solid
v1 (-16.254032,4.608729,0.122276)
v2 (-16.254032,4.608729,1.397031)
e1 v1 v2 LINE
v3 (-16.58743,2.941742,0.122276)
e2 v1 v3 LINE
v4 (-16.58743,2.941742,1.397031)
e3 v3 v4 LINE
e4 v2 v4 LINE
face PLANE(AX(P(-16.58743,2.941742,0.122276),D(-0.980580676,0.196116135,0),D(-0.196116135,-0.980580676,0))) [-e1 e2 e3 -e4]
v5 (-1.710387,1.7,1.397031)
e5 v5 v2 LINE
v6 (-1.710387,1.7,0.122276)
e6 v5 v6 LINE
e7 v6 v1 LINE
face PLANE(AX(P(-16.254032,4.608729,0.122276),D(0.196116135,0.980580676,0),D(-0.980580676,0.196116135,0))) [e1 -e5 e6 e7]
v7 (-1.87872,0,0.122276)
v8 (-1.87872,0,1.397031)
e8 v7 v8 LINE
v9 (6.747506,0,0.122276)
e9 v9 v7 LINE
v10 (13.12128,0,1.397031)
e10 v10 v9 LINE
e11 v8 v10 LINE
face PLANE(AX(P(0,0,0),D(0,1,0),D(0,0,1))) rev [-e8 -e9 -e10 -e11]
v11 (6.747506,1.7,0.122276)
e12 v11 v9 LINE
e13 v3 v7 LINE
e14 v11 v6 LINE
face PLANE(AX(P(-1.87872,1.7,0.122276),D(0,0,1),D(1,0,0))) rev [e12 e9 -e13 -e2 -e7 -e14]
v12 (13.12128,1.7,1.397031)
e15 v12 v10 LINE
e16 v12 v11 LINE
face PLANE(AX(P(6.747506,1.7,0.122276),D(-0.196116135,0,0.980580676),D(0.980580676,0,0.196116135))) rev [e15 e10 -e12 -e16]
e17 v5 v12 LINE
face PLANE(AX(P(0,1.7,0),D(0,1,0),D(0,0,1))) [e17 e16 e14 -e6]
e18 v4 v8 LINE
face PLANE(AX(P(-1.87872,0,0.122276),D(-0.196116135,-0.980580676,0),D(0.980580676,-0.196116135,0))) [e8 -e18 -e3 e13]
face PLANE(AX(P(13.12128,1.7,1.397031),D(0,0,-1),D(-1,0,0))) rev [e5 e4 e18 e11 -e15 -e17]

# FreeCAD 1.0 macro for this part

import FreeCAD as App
import Part
import Sketcher
Q = App.Units.Quantity


def add_polygon(sketch, points):
    """Adds a closed chain of lines whose ends are joined by coincident constraints."""
    first, n = sketch.GeometryCount, len(points)
    for a, b in zip(points, points[1:] + points[:1]):
        sketch.addGeometry(Part.LineSegment(App.Vector(*a, 0), App.Vector(*b, 0)), False)
    for i in range(n):
        sketch.addConstraint(Sketcher.Constraint("Coincident", first + i, 2, first + (i + 1) % n, 1))

doc = App.newDocument("Part")
params = doc.addObject("Spreadsheet::Sheet", "Params")
for row, (alias, value) in enumerate([
    ("sketch1_width", "15 mm"),
    ("sketch1_length", "6.5 mm"),
    ("pad1_length", "1.7 mm"),
    ("sketch2_length", "15 mm"),
    ("sketch2_length2", "1.7 mm"),
    ("pad2_length", "1.274755 mm"),
], start=1):
    params.set(f"A{row}", alias)
    params.set(f"B{row}", "=" + value)
    params.setAlias(f"B{row}", alias)

body = doc.addObject("PartDesign::Body", "Body")

# Sketch on XZ plane
sketch1 = body.newObject("Sketcher::SketchObject", "Sketch")
sketch1.AttachmentSupport = (doc.getObject("XZ_Plane"), [""])
sketch1.MapMode = "FlatFace"
add_polygon(sketch1, [(-1.9, 0.1), (-1.9, 1.4), (13.1, 1.4), (6.7, 0.1)])  # lines 0-3
sketch1.addConstraint([
    Sketcher.Constraint("Vertical", 0),
    Sketcher.Constraint("Horizontal", 1),
    Sketcher.Constraint("Horizontal", 3),
    Sketcher.Constraint("DistanceX", 1, 1, 1, 2, Q("15 mm")),
    Sketcher.Constraint("Distance", 2, Q("6.5 mm")),
    Sketcher.Constraint("DistanceX", 3, 2, 3, 1, Q("8.626226 mm")),
    Sketcher.Constraint("DistanceX", 0, 2, -1, 1, Q("1.87872 mm")),
    Sketcher.Constraint("DistanceY", -1, 1, 0, 2, Q("1.397031 mm")),
])
sketch1.setExpression("Constraints[7]", "Params.sketch1_width")
sketch1.setExpression("Constraints[8]", "Params.sketch1_length")
pad1 = body.newObject("PartDesign::Pad", "Pad")
pad1.Profile = sketch1
pad1.setExpression("Length", "Params.pad1_length")
pad1.Reversed = True

# Sketch on XY plane
sketch2 = body.newObject("Sketcher::SketchObject", "Sketch001")
sketch2.AttachmentSupport = (doc.getObject("XY_Plane"), [""])
sketch2.MapMode = "FlatFace"
sketch2.AttachmentOffset = App.Placement(App.Vector(0, 0, 1.397031), App.Rotation())
add_polygon(sketch2, [(-16.6, 2.9), (-1.9, 0), (-1.5, 1.7), (-16.3, 4.6)])  # lines 0-3
sketch2.addConstraint([
    Sketcher.Constraint("PointOnObject", 0, 2, -1),
    Sketcher.Constraint("Perpendicular", 0, 1),
    Sketcher.Constraint("Perpendicular", 1, 2),
    Sketcher.Constraint("Perpendicular", 2, 3),
    Sketcher.Constraint("Distance", 0, Q("15 mm")),
    Sketcher.Constraint("Distance", 1, Q("1.7 mm")),
    Sketcher.Constraint("DistanceX", 0, 2, -1, 1, Q("1.87872 mm")),
    Sketcher.Constraint("DistanceY", -1, 1, 2, 2, Q("4.608729 mm")),
])
sketch2.setExpression("Constraints[8]", "Params.sketch2_length")
sketch2.setExpression("Constraints[9]", "Params.sketch2_length2")
pad2 = body.newObject("PartDesign::Pad", "Pad001")
pad2.Profile = sketch2
pad2.setExpression("Length", "Params.pad2_length")
pad2.Reversed = True

doc.recompute()
